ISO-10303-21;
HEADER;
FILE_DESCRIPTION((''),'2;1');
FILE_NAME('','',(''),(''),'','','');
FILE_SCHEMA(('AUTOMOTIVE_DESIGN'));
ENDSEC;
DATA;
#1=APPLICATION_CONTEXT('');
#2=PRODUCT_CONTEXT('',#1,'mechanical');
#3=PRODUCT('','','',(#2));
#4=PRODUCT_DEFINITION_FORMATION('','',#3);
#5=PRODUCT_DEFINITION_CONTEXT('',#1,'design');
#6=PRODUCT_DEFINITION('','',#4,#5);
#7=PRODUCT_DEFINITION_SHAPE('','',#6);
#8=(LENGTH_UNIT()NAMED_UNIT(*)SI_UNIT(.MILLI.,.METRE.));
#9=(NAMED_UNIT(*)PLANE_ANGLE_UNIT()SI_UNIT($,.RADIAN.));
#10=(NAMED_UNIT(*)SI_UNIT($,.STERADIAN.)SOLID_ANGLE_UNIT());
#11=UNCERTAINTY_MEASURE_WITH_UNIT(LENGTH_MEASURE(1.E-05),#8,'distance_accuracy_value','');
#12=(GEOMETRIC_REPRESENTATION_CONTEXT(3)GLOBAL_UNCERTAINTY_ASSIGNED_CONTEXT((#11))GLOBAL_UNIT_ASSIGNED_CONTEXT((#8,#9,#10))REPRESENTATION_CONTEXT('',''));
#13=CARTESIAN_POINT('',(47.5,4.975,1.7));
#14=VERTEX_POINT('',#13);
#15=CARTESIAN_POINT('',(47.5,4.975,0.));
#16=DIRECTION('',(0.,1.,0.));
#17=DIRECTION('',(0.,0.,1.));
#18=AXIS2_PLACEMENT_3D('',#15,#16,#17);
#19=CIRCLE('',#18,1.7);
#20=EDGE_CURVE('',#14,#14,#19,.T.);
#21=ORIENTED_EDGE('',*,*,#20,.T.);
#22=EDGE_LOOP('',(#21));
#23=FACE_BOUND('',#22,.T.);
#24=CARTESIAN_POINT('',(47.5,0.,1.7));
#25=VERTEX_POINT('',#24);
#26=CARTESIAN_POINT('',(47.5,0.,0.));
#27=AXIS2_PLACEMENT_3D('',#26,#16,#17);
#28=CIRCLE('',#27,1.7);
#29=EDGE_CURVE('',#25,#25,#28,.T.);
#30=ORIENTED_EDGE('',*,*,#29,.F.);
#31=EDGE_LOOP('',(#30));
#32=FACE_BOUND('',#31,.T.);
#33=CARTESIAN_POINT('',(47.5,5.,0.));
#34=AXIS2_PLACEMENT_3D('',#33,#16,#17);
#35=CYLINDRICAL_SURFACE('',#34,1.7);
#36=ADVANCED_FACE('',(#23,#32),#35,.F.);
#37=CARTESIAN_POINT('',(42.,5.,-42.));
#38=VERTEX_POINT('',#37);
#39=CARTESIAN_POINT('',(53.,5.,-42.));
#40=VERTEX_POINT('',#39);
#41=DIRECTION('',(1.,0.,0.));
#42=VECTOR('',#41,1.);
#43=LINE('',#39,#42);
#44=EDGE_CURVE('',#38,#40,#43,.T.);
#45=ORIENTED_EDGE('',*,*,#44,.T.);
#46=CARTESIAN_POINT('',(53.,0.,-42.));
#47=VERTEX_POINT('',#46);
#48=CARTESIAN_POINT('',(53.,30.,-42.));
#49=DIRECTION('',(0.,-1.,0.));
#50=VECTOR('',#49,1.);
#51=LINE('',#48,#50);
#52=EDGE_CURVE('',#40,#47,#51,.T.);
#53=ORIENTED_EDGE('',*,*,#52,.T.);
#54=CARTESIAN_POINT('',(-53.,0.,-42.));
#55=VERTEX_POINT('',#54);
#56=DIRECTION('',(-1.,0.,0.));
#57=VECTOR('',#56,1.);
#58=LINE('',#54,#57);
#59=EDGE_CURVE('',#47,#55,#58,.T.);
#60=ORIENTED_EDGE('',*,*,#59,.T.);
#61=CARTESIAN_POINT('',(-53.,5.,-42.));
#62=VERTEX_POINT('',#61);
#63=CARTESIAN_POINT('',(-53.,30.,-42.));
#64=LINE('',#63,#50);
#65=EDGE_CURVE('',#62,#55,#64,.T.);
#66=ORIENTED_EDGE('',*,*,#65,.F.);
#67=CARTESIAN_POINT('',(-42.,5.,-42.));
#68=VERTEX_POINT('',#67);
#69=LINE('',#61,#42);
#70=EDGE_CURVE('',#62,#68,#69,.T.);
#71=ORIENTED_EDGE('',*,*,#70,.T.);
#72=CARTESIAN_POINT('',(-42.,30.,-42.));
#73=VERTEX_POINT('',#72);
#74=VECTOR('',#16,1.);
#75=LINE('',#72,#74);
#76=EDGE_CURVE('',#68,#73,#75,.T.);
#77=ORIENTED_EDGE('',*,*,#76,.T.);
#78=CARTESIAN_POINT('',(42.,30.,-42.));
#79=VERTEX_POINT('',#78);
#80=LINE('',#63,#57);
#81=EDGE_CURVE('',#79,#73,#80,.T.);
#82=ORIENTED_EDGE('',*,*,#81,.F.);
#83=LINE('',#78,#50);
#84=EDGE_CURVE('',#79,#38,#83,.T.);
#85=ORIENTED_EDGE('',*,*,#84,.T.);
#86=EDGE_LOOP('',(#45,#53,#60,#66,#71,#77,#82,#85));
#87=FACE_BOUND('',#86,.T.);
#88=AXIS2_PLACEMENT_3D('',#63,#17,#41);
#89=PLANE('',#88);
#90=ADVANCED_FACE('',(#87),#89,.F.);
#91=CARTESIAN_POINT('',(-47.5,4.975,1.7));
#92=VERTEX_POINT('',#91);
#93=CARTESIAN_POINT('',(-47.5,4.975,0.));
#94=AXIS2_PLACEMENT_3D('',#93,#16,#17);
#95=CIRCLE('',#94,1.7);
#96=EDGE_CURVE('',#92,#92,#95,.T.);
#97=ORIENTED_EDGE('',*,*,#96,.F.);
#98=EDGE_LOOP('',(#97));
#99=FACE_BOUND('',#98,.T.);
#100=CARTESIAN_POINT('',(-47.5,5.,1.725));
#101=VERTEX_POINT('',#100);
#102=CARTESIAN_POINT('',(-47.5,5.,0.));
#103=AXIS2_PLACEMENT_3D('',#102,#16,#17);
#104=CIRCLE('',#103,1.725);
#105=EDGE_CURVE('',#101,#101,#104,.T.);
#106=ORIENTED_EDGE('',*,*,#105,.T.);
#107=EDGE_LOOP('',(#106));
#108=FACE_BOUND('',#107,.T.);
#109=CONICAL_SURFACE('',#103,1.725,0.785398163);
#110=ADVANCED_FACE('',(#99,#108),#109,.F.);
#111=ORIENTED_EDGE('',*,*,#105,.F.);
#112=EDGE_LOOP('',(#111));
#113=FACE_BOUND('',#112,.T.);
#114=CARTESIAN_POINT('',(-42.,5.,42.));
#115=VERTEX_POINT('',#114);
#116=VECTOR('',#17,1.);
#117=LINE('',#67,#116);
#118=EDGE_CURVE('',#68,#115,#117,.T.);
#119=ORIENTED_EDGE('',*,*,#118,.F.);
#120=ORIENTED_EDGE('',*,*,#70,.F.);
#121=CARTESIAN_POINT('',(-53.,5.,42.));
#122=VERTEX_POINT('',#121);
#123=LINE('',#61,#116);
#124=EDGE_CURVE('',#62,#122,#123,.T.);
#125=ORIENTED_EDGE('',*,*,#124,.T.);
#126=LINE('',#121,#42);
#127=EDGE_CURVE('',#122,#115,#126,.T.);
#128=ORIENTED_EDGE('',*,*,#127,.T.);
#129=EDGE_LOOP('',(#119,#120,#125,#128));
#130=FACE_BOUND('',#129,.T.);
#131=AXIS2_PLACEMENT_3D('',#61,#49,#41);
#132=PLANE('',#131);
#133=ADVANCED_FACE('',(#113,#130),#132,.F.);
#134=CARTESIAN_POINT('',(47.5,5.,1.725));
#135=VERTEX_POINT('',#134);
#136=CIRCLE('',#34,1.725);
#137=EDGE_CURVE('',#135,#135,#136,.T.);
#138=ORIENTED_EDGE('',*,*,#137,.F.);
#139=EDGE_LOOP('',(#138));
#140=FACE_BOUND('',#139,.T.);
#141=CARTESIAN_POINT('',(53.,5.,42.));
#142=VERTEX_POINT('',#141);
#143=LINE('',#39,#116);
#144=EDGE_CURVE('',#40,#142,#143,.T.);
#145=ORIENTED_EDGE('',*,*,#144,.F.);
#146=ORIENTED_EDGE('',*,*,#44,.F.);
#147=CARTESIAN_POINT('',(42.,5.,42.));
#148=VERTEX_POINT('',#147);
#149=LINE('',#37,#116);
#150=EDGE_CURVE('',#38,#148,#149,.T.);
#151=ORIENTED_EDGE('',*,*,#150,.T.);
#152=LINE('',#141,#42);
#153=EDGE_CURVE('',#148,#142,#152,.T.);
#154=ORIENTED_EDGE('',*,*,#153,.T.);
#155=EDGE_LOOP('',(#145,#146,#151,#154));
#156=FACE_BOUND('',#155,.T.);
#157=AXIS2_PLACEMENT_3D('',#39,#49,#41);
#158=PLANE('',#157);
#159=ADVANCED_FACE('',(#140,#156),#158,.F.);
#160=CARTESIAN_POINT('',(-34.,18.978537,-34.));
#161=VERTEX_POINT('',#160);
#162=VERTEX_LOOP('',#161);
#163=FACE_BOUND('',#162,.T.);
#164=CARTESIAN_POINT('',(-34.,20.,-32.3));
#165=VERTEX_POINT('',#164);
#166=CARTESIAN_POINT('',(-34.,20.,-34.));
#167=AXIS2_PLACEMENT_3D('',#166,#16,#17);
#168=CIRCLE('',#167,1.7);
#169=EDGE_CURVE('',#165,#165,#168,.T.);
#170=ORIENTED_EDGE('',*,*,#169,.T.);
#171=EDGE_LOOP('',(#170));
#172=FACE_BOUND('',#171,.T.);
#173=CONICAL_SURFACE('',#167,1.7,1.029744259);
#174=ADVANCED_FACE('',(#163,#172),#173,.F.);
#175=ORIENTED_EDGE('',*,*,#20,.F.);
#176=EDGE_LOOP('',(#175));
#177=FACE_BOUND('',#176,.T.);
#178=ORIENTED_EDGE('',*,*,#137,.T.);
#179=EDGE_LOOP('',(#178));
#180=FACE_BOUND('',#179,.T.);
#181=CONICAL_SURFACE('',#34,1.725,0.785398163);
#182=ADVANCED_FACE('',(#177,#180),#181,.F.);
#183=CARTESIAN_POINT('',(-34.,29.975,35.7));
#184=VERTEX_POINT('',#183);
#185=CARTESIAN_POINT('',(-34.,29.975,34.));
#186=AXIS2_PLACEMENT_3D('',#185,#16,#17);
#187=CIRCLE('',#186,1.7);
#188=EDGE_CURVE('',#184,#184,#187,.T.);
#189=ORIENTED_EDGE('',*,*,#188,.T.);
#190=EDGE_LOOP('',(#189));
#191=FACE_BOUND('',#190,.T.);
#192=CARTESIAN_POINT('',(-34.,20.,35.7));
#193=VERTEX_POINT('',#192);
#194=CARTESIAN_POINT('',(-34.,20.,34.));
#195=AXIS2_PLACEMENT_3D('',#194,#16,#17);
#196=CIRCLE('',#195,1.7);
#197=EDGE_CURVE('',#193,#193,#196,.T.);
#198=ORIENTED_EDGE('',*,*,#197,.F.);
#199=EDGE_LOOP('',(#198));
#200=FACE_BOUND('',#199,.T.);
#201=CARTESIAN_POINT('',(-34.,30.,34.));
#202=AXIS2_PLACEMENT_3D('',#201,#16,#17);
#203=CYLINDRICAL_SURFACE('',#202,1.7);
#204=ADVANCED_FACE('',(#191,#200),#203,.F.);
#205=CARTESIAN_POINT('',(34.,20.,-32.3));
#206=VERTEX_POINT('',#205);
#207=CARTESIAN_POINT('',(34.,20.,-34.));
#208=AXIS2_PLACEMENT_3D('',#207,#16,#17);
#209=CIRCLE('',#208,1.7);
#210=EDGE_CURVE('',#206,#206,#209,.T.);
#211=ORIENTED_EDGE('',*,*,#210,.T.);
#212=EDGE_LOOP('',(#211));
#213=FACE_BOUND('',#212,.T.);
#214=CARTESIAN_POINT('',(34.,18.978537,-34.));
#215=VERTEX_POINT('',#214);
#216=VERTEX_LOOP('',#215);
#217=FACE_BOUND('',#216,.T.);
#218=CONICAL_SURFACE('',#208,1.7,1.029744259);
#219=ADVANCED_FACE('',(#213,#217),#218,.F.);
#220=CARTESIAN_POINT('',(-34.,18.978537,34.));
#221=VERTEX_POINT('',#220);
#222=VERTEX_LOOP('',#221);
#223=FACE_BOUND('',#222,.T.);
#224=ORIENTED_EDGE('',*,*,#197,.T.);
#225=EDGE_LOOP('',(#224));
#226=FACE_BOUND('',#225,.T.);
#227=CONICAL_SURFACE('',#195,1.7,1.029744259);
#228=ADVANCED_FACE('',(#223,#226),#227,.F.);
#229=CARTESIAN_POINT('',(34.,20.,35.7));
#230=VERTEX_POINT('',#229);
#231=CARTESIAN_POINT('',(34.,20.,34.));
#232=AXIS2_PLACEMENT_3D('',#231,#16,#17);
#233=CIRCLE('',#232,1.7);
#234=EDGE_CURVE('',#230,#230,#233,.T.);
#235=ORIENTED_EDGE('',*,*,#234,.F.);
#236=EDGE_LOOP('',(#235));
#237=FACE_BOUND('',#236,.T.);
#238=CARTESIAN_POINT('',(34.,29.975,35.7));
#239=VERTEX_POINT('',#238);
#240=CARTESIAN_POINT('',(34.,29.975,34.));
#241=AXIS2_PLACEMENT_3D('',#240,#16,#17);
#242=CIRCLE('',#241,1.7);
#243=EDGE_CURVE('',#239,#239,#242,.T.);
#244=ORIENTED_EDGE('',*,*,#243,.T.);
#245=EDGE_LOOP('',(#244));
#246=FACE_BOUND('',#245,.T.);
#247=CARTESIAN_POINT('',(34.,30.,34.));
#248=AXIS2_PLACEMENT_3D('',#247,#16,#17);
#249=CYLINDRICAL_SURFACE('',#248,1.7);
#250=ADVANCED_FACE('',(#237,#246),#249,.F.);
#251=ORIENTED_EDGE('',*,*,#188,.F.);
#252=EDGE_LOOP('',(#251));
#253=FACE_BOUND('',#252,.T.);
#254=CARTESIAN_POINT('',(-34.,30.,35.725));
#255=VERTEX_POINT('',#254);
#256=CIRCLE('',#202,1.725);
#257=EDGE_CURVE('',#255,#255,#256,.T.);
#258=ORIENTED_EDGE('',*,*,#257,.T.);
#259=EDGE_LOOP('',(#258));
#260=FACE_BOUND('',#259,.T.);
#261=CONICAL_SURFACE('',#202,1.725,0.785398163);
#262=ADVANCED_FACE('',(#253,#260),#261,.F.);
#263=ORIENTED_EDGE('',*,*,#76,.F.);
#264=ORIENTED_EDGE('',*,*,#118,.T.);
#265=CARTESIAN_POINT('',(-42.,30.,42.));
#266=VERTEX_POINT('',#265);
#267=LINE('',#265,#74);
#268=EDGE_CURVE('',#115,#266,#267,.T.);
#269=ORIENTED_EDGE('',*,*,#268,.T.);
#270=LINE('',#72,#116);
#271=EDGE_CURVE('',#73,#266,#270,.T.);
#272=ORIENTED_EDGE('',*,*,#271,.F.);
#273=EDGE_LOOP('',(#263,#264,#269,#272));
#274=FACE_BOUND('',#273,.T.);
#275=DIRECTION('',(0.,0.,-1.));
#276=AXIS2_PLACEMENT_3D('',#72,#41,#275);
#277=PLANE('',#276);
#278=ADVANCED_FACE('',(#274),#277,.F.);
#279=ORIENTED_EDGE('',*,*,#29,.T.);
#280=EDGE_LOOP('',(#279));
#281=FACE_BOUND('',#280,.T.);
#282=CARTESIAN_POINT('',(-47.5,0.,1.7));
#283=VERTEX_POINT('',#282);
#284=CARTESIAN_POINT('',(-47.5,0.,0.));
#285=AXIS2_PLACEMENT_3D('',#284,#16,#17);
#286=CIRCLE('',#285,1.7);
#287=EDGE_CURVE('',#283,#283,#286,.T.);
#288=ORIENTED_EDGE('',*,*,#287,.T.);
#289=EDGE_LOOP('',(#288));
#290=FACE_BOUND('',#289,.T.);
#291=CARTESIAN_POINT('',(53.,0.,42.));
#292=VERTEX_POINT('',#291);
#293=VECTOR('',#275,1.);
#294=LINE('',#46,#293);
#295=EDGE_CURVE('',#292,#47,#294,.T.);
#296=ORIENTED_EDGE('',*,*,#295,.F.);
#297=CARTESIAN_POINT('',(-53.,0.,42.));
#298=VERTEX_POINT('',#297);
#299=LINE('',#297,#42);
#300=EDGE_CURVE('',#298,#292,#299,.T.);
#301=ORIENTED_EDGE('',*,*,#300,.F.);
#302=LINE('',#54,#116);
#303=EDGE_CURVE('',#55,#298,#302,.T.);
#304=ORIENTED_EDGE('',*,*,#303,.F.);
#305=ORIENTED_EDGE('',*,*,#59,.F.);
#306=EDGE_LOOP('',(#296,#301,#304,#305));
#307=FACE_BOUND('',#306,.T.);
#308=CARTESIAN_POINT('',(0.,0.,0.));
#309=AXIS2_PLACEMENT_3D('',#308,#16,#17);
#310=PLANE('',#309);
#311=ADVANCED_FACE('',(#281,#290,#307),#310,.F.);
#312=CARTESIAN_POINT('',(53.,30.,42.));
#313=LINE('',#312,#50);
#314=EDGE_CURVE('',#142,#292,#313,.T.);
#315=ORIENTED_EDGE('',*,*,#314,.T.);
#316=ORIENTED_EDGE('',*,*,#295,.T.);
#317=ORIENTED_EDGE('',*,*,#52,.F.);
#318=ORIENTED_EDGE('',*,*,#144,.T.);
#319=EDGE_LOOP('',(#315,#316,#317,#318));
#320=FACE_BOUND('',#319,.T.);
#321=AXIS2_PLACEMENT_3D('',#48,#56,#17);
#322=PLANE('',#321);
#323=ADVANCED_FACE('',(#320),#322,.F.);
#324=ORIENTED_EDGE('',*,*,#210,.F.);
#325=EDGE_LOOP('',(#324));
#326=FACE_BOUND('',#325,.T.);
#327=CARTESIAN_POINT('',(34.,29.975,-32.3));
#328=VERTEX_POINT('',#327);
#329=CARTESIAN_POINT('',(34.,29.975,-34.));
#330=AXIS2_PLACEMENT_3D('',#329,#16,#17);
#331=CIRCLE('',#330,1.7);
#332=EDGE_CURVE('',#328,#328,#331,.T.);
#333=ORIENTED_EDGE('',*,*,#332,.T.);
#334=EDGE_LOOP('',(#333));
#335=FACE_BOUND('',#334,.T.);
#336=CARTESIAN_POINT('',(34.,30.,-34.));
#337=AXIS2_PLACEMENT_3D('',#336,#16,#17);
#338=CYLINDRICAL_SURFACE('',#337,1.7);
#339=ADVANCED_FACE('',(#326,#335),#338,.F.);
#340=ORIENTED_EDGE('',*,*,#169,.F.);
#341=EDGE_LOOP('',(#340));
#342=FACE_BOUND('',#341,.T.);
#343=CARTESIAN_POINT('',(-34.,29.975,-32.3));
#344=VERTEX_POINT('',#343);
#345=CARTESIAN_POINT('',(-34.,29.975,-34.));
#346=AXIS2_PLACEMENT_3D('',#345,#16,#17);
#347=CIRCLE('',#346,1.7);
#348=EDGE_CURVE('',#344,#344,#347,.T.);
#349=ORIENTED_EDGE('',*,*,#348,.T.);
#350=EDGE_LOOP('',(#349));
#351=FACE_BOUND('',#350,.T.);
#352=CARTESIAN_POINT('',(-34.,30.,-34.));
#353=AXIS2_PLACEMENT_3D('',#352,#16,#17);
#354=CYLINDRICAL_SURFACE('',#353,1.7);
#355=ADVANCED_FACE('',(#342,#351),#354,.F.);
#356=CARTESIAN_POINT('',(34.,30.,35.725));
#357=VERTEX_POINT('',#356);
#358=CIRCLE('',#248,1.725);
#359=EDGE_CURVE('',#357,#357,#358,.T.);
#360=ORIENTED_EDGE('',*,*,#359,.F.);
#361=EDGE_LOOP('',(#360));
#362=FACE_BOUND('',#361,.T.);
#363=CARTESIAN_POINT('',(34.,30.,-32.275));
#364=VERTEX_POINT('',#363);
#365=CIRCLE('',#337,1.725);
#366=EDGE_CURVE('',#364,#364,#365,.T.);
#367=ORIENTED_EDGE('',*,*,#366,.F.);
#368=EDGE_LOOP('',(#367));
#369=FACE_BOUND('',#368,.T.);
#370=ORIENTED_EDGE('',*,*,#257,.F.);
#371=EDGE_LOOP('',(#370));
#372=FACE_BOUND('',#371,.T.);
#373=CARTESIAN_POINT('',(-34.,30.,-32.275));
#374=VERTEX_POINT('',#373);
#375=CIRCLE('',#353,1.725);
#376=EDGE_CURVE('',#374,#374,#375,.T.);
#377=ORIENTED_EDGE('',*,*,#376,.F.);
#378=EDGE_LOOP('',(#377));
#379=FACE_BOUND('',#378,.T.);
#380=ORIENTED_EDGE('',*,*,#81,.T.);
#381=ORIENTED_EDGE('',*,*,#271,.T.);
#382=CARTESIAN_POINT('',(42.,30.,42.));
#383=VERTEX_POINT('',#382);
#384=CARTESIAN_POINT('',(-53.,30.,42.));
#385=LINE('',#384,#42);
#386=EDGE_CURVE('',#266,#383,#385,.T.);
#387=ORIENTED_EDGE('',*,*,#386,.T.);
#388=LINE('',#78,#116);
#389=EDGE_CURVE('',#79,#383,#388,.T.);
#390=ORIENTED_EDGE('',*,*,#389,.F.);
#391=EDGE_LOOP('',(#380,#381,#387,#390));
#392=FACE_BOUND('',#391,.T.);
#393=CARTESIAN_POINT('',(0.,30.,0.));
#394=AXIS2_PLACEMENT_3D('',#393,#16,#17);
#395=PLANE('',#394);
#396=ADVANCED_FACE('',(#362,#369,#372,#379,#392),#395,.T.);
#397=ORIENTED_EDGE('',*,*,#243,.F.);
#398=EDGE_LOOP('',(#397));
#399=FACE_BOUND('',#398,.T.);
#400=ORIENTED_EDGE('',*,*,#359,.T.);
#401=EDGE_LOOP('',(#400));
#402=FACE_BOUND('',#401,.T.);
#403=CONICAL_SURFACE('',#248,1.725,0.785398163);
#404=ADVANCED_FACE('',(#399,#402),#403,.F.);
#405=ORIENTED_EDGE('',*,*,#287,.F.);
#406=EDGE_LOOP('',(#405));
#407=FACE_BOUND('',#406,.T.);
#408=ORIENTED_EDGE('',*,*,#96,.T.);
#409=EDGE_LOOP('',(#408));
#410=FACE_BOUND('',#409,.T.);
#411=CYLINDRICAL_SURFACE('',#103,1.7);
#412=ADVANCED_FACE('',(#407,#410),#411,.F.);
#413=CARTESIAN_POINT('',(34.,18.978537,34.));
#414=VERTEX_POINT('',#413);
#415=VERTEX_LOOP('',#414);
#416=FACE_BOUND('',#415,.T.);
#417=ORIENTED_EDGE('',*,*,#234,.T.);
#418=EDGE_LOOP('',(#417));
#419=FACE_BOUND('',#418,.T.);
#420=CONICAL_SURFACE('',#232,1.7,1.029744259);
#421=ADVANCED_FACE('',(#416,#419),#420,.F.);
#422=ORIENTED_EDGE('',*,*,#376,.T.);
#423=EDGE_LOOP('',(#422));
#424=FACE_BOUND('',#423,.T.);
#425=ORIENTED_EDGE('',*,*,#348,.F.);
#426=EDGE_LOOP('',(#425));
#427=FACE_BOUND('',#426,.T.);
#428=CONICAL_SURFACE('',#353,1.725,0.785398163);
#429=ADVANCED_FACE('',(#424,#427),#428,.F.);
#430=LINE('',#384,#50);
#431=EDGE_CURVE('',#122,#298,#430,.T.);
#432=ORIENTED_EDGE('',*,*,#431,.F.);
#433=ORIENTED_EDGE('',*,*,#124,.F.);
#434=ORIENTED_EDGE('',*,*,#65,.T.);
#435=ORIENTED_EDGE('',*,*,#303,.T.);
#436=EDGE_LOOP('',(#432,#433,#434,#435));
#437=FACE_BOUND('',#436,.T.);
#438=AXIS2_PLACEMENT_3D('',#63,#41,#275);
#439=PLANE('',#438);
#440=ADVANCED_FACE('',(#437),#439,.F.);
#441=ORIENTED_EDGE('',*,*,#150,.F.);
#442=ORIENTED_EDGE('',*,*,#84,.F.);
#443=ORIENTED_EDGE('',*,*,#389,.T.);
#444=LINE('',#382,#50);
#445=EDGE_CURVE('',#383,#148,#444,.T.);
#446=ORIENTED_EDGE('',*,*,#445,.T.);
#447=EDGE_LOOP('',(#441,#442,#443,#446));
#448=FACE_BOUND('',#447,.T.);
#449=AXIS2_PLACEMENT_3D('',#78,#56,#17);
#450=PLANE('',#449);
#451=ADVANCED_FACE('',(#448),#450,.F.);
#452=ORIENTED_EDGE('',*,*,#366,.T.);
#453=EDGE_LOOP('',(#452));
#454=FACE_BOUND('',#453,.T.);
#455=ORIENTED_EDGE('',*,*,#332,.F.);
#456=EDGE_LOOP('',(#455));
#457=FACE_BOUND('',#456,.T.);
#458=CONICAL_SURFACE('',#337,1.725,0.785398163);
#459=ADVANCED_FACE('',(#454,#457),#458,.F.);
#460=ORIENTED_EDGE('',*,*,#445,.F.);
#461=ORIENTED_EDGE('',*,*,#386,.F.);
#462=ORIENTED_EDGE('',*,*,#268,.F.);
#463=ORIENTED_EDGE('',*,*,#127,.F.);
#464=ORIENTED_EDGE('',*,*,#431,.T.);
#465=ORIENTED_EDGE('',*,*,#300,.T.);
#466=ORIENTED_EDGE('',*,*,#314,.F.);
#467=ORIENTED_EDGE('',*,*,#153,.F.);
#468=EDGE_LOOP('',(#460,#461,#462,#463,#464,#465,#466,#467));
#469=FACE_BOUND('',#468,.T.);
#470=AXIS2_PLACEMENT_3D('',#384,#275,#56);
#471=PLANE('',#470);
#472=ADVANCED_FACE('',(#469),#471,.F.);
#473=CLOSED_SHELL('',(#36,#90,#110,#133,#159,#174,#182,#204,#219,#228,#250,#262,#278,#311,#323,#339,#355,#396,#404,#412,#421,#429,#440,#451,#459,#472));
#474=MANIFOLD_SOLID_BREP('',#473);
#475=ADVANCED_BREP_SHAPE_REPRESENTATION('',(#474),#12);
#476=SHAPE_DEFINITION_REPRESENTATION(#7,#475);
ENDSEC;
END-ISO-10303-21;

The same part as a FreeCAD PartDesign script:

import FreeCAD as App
import Part
import Sketcher

V = App.Vector


def add_polygon(sketch, points):
    """Adds a closed chain of lines whose ends are joined by coincident constraints."""
    first, n = sketch.GeometryCount, len(points)
    for a, b in zip(points, points[1:] + points[:1]):
        sketch.addGeometry(Part.LineSegment(App.Vector(*a, 0), App.Vector(*b, 0)), False)
    for i in range(n):
        sketch.addConstraint(Sketcher.Constraint("Coincident", first + i, 2, first + (i + 1) % n, 1))

doc = App.newDocument("Part")
body = doc.addObject("PartDesign::Body", "Body")

# Sketch on XZ plane
sketch1 = body.newObject("Sketcher::SketchObject", "Sketch")
sketch1.AttachmentSupport = (doc.getObject("XZ_Plane"), [""])
sketch1.MapMode = "FlatFace"
add_polygon(sketch1, [(-53, -42), (-53, 42), (53, 42), (53, -42)])  # lines 0-3
sketch1.addConstraint([
    Sketcher.Constraint("Vertical", 0),
    Sketcher.Constraint("Horizontal", 1),
    Sketcher.Constraint("Vertical", 2),
    Sketcher.Constraint("Horizontal", 3),
    Sketcher.Constraint("Symmetric", 0, 2, 2, 2, -1, 1),
    Sketcher.Constraint("DistanceX", 1, 1, 1, 2, 106.0),
    Sketcher.Constraint("DistanceY", 0, 1, 0, 2, 84.0),
])
pad1 = body.newObject("PartDesign::Pad", "Pad")
pad1.Profile = sketch1
pad1.Length = 30
pad1.Reversed = True

# Sketch on XY plane
sketch2 = body.newObject("Sketcher::SketchObject", "Sketch001")
sketch2.AttachmentSupport = (doc.getObject("XY_Plane"), [""])
sketch2.MapMode = "FlatFace"
sketch2.AttachmentOffset = App.Placement(V(0, 0, 42), App.Rotation())
add_polygon(sketch2, [(42, 30), (42, 5), (53, 5), (53, 30)])  # lines 0-3
add_polygon(sketch2, [(-53, 30), (-53, 5), (-42, 5), (-42, 30)])  # lines 4-7
sketch2.addConstraint([
    Sketcher.Constraint("Vertical", 0),
    Sketcher.Constraint("Horizontal", 1),
    Sketcher.Constraint("Vertical", 2),
    Sketcher.Constraint("Horizontal", 3),
    Sketcher.Constraint("Vertical", 4),
    Sketcher.Constraint("Horizontal", 5),
    Sketcher.Constraint("Vertical", 6),
    Sketcher.Constraint("Horizontal", 7),
    Sketcher.Constraint("Symmetric", 1, 2, 4, 2, -2),
    Sketcher.Constraint("Symmetric", 3, 2, 6, 2, -2),
    Sketcher.Constraint("DistanceX", 1, 1, 1, 2, 11.0),
    Sketcher.Constraint("DistanceY", 0, 2, 0, 1, 25.0),
    Sketcher.Constraint("DistanceX", -1, 1, 0, 2, 42.0),
    Sketcher.Constraint("DistanceY", -1, 1, 0, 2, 5.0),
])
pocket1 = body.newObject("PartDesign::Pocket", "Pocket")
pocket1.Profile = sketch2
pocket1.Type = "ThroughAll"

# Sketch on XZ plane
sketch3 = body.newObject("Sketcher::SketchObject", "Sketch002")
sketch3.AttachmentSupport = (doc.getObject("XZ_Plane"), [""])
sketch3.MapMode = "FlatFace"
sketch3.AttachmentOffset = App.Placement(V(0, 0, -30), App.Rotation())
sketch3.addGeometry([
    Part.Circle(V(-34, -34, 0), V(0, 0, 1), 1.7),
    Part.Circle(V(34, -34, 0), V(0, 0, 1), 1.7),
    Part.Circle(V(34, 34, 0), V(0, 0, 1), 1.7),
    Part.Circle(V(-34, 34, 0), V(0, 0, 1), 1.7),
], False)
sketch3.addConstraint([
    Sketcher.Constraint("Equal", 0, 1),
    Sketcher.Constraint("Equal", 1, 2),
    Sketcher.Constraint("Equal", 2, 3),
    Sketcher.Constraint("Symmetric", 0, 3, 2, 3, -1, 1),
    Sketcher.Constraint("Symmetric", 1, 3, 3, 3, -1, 1),
    Sketcher.Constraint("Symmetric", 0, 3, 1, 3, -2),
    Sketcher.Constraint("Diameter", 0, 3.4),
    Sketcher.Constraint("DistanceX", 0, 3, -1, 1, 34.0),
    Sketcher.Constraint("DistanceY", 0, 3, -1, 1, 34.0),
])
doc.recompute()
hole = body.newObject("PartDesign::Hole", "Hole")
hole.Profile = sketch3
hole.ThreadType = "None"
hole.Diameter = 3.4
hole.DepthType = "Dimension"
hole.Depth = 10
hole.DrillPoint = "Angled"
hole.DrillPointAngle = 118
hole.HoleCutType = "Countersink"
hole.HoleCutDiameter = 3.45
hole.HoleCutCountersinkAngle = 90
hole.Reversed = True

# Sketch on XZ plane
sketch4 = body.newObject("Sketcher::SketchObject", "Sketch003")
sketch4.AttachmentSupport = (doc.getObject("XZ_Plane"), [""])
sketch4.MapMode = "FlatFace"
sketch4.AttachmentOffset = App.Placement(V(0, 0, -5), App.Rotation())
sketch4.addGeometry([
    Part.Circle(V(-47.5, 0, 0), V(0, 0, 1), 1.7),
    Part.Circle(V(47.5, 0, 0), V(0, 0, 1), 1.7),
], False)
sketch4.addConstraint([
    Sketcher.Constraint("Equal", 0, 1),
    Sketcher.Constraint("Symmetric", 0, 3, 1, 3, -1, 1),
    Sketcher.Constraint("PointOnObject", 0, 3, -1),
    Sketcher.Constraint("Diameter", 0, 3.4),
    Sketcher.Constraint("DistanceX", 0, 3, 1, 3, 95.0),
])
doc.recompute()
hole2 = body.newObject("PartDesign::Hole", "Hole001")
hole2.Profile = sketch4
hole2.ThreadType = "None"
hole2.Diameter = 3.4
hole2.DepthType = "ThroughAll"
hole2.HoleCutType = "Countersink"
hole2.HoleCutDiameter = 3.45
hole2.HoleCutCountersinkAngle = 90
hole2.Reversed = True

doc.recompute()
